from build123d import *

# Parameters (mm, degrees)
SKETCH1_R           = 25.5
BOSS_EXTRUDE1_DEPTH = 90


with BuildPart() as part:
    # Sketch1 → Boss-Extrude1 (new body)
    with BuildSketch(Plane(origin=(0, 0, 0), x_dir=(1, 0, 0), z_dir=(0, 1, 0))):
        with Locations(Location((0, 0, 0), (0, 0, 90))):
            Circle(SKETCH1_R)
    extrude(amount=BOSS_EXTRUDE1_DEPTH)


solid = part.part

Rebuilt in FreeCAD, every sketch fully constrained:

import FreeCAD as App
import Part
import Sketcher

V = App.Vector

doc = App.newDocument("Part")
params = doc.addObject("Spreadsheet::Sheet", "Params")
for row, (alias, value) in enumerate([
    ("sketch1_diameter", "51 mm"),
    ("pad1_length", "90 mm"),
], start=1):
    params.set(f"A{row}", alias)
    params.set(f"B{row}", "=" + value)
    params.setAlias(f"B{row}", alias)

body = doc.addObject("PartDesign::Body", "Body")

sketch1 = body.newObject("Sketcher::SketchObject", "Sketch")
sketch1.AttachmentSupport = (doc.getObject("XZ_Plane"), [""])
sketch1.MapMode = "FlatFace"
sketch1.addGeometry(Part.Circle(V(0, 0, 0), V(0, 0, 1), 25.5), False)
sketch1.addConstraint([
    Sketcher.Constraint("Coincident", 0, 3, -1, 1),
    Sketcher.Constraint("Diameter", 0, 51.0),
])
sketch1.setExpression("Constraints[1]", "Params.sketch1_diameter")
pad1 = body.newObject("PartDesign::Pad", "Pad")
pad1.Profile = sketch1
pad1.setExpression("Length", "Params.pad1_length")
pad1.Reversed = True

doc.recompute()
